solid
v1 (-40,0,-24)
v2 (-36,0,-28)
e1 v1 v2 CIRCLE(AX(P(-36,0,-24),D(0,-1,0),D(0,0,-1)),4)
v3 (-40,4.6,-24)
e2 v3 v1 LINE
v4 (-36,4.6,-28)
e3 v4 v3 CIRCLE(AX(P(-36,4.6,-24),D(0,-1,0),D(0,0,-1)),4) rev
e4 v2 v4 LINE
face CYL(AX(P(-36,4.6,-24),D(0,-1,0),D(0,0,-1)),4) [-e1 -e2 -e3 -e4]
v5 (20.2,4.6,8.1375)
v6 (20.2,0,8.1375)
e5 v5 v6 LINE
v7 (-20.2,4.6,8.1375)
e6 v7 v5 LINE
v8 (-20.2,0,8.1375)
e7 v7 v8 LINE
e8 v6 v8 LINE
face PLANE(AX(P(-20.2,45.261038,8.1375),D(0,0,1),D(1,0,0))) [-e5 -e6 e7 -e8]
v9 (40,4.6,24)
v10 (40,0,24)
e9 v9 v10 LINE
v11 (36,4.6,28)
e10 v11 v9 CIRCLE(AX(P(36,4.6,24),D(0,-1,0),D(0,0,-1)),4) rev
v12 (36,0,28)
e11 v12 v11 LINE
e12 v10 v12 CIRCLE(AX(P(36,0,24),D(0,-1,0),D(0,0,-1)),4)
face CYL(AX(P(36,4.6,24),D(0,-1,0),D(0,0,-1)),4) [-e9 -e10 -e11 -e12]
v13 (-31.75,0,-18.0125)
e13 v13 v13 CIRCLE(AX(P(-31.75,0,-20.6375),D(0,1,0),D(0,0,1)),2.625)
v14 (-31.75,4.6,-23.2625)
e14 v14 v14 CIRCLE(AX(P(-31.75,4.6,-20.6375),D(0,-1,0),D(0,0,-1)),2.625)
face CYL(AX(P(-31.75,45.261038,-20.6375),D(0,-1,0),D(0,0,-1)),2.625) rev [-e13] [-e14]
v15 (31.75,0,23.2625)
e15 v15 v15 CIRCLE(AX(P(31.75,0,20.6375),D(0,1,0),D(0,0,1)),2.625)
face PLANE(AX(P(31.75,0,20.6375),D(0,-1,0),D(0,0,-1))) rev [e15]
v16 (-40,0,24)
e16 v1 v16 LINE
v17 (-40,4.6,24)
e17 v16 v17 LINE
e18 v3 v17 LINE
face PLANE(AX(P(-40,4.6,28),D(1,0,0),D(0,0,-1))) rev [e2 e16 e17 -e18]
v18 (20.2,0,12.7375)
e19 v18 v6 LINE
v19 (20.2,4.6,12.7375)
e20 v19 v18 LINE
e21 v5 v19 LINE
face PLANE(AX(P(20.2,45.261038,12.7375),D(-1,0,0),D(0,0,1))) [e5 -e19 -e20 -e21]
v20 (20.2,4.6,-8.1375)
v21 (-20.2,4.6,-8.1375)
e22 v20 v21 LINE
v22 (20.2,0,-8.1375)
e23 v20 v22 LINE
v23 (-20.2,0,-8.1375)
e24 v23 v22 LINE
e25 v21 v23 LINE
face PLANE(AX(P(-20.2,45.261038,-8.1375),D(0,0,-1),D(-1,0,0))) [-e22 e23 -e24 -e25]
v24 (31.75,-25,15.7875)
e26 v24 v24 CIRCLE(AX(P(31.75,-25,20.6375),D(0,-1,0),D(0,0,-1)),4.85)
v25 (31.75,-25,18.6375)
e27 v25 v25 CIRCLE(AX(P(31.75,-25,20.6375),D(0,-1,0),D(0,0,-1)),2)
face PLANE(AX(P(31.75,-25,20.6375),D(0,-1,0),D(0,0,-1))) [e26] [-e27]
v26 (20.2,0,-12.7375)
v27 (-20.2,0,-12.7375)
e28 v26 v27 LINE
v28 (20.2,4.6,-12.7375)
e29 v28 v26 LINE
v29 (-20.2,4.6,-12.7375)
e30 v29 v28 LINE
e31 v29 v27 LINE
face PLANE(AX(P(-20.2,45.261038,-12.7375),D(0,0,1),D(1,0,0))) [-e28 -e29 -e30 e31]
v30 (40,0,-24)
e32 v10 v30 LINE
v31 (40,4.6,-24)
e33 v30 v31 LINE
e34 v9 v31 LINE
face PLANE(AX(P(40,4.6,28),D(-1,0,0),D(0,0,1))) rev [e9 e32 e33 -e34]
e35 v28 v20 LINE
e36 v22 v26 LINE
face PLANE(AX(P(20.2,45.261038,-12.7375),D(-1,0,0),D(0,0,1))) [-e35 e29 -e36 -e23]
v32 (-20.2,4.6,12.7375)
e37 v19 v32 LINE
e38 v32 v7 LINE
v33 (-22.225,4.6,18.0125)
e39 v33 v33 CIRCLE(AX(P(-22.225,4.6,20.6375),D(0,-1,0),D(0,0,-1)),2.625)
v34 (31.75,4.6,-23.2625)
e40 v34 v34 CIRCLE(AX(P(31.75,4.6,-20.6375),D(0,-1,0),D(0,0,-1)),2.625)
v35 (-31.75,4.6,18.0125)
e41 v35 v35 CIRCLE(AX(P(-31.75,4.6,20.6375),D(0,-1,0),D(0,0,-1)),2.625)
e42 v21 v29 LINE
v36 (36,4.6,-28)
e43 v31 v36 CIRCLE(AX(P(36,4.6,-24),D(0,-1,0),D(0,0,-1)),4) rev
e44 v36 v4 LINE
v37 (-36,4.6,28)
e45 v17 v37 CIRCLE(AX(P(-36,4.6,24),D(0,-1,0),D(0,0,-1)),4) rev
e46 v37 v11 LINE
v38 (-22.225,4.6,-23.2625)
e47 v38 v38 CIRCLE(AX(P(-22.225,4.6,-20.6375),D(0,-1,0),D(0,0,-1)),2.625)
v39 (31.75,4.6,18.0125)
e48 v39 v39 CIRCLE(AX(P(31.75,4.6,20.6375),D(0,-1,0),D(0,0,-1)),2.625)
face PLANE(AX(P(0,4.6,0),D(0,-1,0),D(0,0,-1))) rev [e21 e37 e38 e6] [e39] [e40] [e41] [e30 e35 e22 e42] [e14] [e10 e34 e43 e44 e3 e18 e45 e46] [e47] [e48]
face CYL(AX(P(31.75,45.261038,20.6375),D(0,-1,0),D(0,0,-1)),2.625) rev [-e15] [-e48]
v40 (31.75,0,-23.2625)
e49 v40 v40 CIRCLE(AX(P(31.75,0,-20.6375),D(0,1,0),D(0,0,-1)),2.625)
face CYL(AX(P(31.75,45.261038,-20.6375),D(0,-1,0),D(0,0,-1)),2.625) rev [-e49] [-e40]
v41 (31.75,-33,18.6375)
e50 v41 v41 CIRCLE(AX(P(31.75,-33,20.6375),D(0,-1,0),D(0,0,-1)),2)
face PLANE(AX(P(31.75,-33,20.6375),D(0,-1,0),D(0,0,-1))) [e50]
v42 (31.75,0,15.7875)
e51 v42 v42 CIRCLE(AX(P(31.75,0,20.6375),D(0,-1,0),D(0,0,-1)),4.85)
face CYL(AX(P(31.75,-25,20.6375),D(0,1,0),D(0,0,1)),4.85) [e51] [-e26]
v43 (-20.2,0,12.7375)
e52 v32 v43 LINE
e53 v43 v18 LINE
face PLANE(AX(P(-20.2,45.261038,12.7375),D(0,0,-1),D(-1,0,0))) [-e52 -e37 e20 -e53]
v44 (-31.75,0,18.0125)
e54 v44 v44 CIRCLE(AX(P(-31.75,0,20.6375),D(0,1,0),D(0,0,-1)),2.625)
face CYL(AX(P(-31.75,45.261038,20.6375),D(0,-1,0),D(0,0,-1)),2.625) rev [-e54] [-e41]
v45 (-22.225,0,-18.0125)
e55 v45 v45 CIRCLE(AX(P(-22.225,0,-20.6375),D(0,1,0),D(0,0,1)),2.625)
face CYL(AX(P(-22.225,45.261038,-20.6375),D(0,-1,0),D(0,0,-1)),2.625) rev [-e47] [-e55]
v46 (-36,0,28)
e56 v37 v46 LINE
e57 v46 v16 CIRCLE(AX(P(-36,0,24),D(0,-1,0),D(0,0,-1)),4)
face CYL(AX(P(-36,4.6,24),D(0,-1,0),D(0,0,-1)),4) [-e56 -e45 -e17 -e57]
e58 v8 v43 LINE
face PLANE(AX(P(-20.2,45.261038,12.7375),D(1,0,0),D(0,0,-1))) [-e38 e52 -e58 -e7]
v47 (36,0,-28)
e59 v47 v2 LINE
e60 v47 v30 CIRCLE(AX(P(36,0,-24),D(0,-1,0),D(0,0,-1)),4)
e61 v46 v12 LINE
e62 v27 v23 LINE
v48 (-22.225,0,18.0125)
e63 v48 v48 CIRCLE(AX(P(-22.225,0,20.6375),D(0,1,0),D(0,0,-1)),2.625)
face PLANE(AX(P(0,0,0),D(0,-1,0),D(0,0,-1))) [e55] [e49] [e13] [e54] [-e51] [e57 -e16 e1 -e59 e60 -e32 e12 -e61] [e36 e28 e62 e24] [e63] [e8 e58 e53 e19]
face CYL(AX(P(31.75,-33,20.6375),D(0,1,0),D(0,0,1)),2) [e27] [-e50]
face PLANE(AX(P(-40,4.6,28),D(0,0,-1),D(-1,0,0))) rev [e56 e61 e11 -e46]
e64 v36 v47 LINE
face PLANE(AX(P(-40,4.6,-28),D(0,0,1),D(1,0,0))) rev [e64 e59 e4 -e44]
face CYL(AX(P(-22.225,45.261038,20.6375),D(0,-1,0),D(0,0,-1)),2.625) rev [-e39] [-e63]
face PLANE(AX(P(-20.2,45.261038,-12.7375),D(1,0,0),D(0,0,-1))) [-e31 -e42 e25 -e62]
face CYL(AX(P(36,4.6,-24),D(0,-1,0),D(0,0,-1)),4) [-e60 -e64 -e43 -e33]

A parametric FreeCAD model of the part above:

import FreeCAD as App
import Part
import Sketcher
from FreeCAD import Vector
Q = App.Units.Quantity


def edges_at(feature, points):
    """Names of the edges that pass closest to the given points."""
    edges = feature.Shape.Edges
    near = lambda p: min(range(len(edges)), key=lambda i: edges[i].distToShape(Part.Vertex(*p))[0])
    return sorted({f"Edge{near(p) + 1}" for p in points})


def add_polygon(sketch, points):
    """Adds a closed chain of lines whose ends are joined by coincident constraints."""
    first, n = sketch.GeometryCount, len(points)
    for a, b in zip(points, points[1:] + points[:1]):
        sketch.addGeometry(Part.LineSegment(App.Vector(*a, 0), App.Vector(*b, 0)), False)
    for i in range(n):
        sketch.addConstraint(Sketcher.Constraint("Coincident", first + i, 2, first + (i + 1) % n, 1))

doc = App.newDocument("Part")
body = doc.addObject("PartDesign::Body", "Body")

# Sketch on XZ plane
sketch1 = body.newObject("Sketcher::SketchObject", "Sketch")
sketch1.AttachmentSupport = (doc.getObject("XZ_Plane"), [""])
sketch1.MapMode = "FlatFace"
add_polygon(sketch1, [(-40, -28), (-40, 28), (40, 28), (40, -28)])  # lines 0-3
sketch1.addConstraint(Sketcher.Constraint("Vertical", 0))
sketch1.addConstraint(Sketcher.Constraint("Horizontal", 1))
sketch1.addConstraint(Sketcher.Constraint("Vertical", 2))
sketch1.addConstraint(Sketcher.Constraint("Horizontal", 3))
sketch1.addConstraint(Sketcher.Constraint("Symmetric", 0, 2, 2, 2, -1, 1))
sketch1.addConstraint(Sketcher.Constraint("DistanceX", 1, 1, 1, 2, Q("80 mm")))
sketch1.addConstraint(Sketcher.Constraint("DistanceY", 0, 1, 0, 2, Q("56 mm")))
pad1 = body.newObject("PartDesign::Pad", "Pad")
pad1.Profile = sketch1
pad1.Length = 4.6
pad1.Reversed = True

# Sketch on XZ plane
sketch2 = body.newObject("Sketcher::SketchObject", "Sketch001")
sketch2.AttachmentSupport = (doc.getObject("XZ_Plane"), [""])
sketch2.MapMode = "FlatFace"
sketch2.addGeometry(Part.Circle(Vector(-31.75, -20.6375, 0), Vector(0, 0, 1), 2.625), False)  # 0
sketch2.addGeometry(Part.Circle(Vector(31.75, -20.6375, 0), Vector(0, 0, 1), 2.625), False)  # 1
sketch2.addGeometry(Part.Circle(Vector(31.75, 20.6375, 0), Vector(0, 0, 1), 2.625), False)  # 2
sketch2.addGeometry(Part.Circle(Vector(-31.75, 20.6375, 0), Vector(0, 0, 1), 2.625), False)  # 3
sketch2.addGeometry(Part.Circle(Vector(-22.225, -20.6375, 0), Vector(0, 0, 1), 2.625), False)  # 4
sketch2.addGeometry(Part.Circle(Vector(-22.225, 20.6375, 0), Vector(0, 0, 1), 2.625), False)  # 5
add_polygon(sketch2, [(-20.2, 8.1375), (-20.2, 12.7375), (20.2, 12.7375), (20.2, 8.1375)])  # lines 6-9
add_polygon(sketch2, [(-20.2, -12.7375), (-20.2, -8.1375), (20.2, -8.1375), (20.2, -12.7375)])  # lines 10-13
sketch2.addConstraint(Sketcher.Constraint("Vertical", 6))
sketch2.addConstraint(Sketcher.Constraint("Horizontal", 7))
sketch2.addConstraint(Sketcher.Constraint("Vertical", 8))
sketch2.addConstraint(Sketcher.Constraint("Horizontal", 9))
sketch2.addConstraint(Sketcher.Constraint("Vertical", 10))
sketch2.addConstraint(Sketcher.Constraint("Horizontal", 11))
sketch2.addConstraint(Sketcher.Constraint("Vertical", 12))
sketch2.addConstraint(Sketcher.Constraint("Horizontal", 13))
sketch2.addConstraint(Sketcher.Constraint("Equal", 0, 1))
sketch2.addConstraint(Sketcher.Constraint("Equal", 1, 2))
sketch2.addConstraint(Sketcher.Constraint("Equal", 2, 3))
sketch2.addConstraint(Sketcher.Constraint("Equal", 3, 4))
sketch2.addConstraint(Sketcher.Constraint("Equal", 4, 5))
sketch2.addConstraint(Sketcher.Constraint("Symmetric", 0, 3, 2, 3, -1, 1))
sketch2.addConstraint(Sketcher.Constraint("Symmetric", 1, 3, 3, 3, -1, 1))
sketch2.addConstraint(Sketcher.Constraint("Symmetric", 8, 2, 10, 2, -1, 1))
sketch2.addConstraint(Sketcher.Constraint("Symmetric", 6, 2, 12, 2, -1, 1))
sketch2.addConstraint(Sketcher.Constraint("Symmetric", 0, 3, 1, 3, -2))
sketch2.addConstraint(Sketcher.Constraint("Symmetric", 4, 3, 5, 3, -1))
sketch2.addConstraint(Sketcher.Constraint("Horizontal", 1, 3, 4, 3))
sketch2.addConstraint(Sketcher.Constraint("Vertical", 9, 2, 10, 2))
sketch2.addConstraint(Sketcher.Constraint("Diameter", 0, Q("5.25 mm")))
sketch2.addConstraint(Sketcher.Constraint("DistanceX", 7, 1, 7, 2, Q("40.4 mm")))
sketch2.addConstraint(Sketcher.Constraint("DistanceY", 6, 1, 6, 2, Q("4.6 mm")))
sketch2.addConstraint(Sketcher.Constraint("DistanceX", 0, 3, 1, 3, Q("63.5 mm")))
sketch2.addConstraint(Sketcher.Constraint("DistanceY", 6, 2, 5, 3, Q("7.9 mm")))
sketch2.addConstraint(Sketcher.Constraint("DistanceX", 4, 3, -1, 1, Q("22.225 mm")))
sketch2.addConstraint(Sketcher.Constraint("DistanceY", 1, 3, 2, 3, Q("41.275 mm")))
pocket1 = body.newObject("PartDesign::Pocket", "Pocket")
pocket1.Profile = sketch2
pocket1.Length = 4.6

# Sketch on XZ plane
sketch3 = body.newObject("Sketcher::SketchObject", "Sketch002")
sketch3.AttachmentSupport = (doc.getObject("XZ_Plane"), [""])
sketch3.MapMode = "FlatFace"
sketch3.addGeometry(Part.Circle(Vector(31.75, 20.6375, 0), Vector(0, 0, 1), 4.85), False)
sketch3.addConstraint(Sketcher.Constraint("Diameter", 0, Q("9.7 mm")))
sketch3.addConstraint(Sketcher.Constraint("DistanceX", -1, 1, 0, 3, Q("31.75 mm")))
sketch3.addConstraint(Sketcher.Constraint("DistanceY", -1, 1, 0, 3, Q("20.6375 mm")))
pad2 = body.newObject("PartDesign::Pad", "Pad001")
pad2.Profile = sketch3
pad2.Length = 25

# Sketch on XZ plane
sketch4 = body.newObject("Sketcher::SketchObject", "Sketch003")
sketch4.AttachmentSupport = (doc.getObject("XZ_Plane"), [""])
sketch4.MapMode = "FlatFace"
sketch4.AttachmentOffset = App.Placement(Vector(0, 0, 25), App.Rotation())
sketch4.addGeometry(Part.Circle(Vector(31.75, 20.6375, 0), Vector(0, 0, 1), 2), False)
sketch4.addConstraint(Sketcher.Constraint("Diameter", 0, Q("4 mm")))
sketch4.addConstraint(Sketcher.Constraint("DistanceX", -1, 1, 0, 3, Q("31.75 mm")))
sketch4.addConstraint(Sketcher.Constraint("DistanceY", -1, 1, 0, 3, Q("20.6375 mm")))
pad3 = body.newObject("PartDesign::Pad", "Pad002")
pad3.Profile = sketch4
pad3.Length = 8
doc.recompute()

fillet = body.newObject("PartDesign::Fillet", "Fillet")
fillet.Base = (pad3, edges_at(pad3, [
    (40, 2.3, 28),
    (-40, 2.3, 28),
    (-40, 2.3, -28),
    (40, 2.3, -28),
]))
fillet.Radius = 4

doc.recompute()
